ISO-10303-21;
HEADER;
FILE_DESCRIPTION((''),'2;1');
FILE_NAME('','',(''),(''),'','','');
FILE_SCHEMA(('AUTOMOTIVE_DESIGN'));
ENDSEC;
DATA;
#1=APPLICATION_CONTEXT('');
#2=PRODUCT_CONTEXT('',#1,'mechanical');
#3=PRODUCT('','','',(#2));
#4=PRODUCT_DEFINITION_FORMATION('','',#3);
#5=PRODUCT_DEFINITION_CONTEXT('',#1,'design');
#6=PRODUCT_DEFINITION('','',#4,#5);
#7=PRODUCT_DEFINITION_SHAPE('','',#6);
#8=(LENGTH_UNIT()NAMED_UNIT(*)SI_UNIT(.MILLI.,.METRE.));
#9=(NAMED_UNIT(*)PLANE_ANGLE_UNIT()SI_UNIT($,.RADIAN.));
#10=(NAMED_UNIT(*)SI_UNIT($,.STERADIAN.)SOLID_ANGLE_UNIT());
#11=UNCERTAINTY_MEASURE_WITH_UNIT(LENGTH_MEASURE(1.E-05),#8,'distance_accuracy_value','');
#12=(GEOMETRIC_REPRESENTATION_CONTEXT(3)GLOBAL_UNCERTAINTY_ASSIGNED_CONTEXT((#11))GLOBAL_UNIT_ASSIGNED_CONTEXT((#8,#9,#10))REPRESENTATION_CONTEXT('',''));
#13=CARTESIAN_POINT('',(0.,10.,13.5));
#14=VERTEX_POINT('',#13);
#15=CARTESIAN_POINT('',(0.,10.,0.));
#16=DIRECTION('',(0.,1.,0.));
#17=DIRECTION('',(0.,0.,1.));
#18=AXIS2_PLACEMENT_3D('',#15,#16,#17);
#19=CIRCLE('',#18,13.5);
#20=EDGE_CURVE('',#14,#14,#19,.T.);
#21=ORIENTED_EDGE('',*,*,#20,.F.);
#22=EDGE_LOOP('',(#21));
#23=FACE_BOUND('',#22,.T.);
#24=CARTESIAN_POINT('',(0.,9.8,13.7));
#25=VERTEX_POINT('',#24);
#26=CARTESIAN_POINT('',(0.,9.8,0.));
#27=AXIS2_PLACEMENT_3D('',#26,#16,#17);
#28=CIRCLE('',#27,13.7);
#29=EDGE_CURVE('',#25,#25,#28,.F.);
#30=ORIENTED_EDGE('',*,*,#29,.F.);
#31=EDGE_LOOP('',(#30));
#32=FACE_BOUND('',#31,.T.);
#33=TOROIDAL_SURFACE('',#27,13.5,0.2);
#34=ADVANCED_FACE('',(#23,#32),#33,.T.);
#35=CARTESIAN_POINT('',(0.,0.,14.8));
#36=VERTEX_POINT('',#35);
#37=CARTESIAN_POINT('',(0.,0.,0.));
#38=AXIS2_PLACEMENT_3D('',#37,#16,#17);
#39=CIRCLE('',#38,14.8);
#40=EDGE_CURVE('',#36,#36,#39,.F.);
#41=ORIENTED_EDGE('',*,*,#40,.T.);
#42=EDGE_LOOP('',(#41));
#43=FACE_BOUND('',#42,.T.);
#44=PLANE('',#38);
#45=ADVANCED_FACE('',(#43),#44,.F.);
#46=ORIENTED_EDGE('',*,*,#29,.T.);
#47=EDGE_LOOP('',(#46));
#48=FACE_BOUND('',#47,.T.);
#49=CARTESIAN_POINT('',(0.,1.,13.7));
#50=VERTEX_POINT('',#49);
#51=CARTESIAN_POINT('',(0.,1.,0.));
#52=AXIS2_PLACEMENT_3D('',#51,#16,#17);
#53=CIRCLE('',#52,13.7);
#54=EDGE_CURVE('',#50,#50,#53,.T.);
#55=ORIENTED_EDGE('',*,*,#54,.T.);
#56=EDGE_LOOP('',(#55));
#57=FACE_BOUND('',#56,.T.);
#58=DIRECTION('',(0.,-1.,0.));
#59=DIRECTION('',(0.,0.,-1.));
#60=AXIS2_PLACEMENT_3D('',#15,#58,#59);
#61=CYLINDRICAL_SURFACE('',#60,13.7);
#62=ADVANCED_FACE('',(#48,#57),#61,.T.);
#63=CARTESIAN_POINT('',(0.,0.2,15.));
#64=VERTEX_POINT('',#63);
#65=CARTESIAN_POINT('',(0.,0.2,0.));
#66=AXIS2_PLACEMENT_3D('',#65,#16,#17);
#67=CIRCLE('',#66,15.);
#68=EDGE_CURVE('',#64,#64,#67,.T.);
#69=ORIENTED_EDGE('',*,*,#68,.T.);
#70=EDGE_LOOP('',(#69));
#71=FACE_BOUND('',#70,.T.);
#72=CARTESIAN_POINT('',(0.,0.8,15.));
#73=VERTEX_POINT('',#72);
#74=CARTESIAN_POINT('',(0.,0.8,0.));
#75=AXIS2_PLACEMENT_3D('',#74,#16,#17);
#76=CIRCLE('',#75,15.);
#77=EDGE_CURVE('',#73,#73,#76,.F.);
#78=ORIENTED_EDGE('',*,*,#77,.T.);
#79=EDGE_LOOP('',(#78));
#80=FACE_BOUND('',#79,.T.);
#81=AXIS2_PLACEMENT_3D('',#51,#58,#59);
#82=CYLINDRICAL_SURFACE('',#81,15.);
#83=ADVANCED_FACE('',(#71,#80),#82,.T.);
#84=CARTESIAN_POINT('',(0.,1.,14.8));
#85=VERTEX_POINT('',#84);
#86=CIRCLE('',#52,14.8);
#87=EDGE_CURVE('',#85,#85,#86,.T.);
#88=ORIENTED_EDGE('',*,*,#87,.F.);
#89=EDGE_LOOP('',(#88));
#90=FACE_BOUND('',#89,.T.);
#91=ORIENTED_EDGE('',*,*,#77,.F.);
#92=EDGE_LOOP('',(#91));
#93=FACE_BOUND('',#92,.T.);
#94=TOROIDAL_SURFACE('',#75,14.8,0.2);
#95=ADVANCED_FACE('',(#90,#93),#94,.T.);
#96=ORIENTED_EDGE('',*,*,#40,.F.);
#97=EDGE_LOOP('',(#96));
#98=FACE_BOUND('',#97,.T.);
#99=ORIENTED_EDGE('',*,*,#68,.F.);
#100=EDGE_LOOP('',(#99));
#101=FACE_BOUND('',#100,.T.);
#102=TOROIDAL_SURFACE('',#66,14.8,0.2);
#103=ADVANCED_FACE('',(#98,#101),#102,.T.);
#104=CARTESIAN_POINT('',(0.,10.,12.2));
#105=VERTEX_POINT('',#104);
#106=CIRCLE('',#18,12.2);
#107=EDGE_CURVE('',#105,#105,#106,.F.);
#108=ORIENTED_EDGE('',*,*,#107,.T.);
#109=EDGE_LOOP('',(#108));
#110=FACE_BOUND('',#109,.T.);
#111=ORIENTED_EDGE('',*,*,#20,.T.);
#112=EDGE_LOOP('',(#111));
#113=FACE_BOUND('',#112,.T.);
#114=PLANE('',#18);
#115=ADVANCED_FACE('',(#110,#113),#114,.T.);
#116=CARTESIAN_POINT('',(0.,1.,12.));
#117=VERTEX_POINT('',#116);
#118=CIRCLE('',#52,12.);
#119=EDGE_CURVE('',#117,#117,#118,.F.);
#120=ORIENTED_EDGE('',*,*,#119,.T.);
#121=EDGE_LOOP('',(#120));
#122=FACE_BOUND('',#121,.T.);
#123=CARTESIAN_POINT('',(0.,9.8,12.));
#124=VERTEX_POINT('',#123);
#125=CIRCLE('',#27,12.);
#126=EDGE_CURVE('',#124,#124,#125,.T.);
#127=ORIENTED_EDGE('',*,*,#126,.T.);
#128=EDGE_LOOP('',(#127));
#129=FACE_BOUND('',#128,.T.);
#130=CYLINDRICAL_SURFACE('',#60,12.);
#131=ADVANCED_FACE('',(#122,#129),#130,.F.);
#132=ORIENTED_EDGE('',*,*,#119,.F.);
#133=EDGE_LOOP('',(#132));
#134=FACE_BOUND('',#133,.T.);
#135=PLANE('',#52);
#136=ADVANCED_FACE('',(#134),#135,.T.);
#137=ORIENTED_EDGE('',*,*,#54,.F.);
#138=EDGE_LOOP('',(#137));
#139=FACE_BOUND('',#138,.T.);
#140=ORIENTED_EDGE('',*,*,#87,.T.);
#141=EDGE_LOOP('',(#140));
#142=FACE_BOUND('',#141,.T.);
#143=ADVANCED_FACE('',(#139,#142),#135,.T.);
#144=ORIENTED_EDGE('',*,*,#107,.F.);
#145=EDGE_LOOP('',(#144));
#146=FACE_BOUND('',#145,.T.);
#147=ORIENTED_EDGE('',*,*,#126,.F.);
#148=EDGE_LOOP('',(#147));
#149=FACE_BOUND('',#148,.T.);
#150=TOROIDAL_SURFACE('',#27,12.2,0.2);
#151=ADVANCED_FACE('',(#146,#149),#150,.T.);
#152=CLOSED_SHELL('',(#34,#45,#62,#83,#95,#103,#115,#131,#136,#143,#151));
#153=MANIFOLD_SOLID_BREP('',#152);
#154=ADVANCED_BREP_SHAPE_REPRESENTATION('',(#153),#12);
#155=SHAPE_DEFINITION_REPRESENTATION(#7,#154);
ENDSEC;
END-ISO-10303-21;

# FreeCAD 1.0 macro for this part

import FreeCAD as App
import Part
import Sketcher

V = App.Vector
Q = App.Units.Quantity


def edges_at(feature, points):
    """Names of the edges that pass closest to the given points."""
    edges = feature.Shape.Edges
    near = lambda p: min(range(len(edges)), key=lambda i: edges[i].distToShape(Part.Vertex(*p))[0])
    return sorted({f"Edge{near(p) + 1}" for p in points})

doc = App.newDocument("Part")
body = doc.addObject("PartDesign::Body", "Body")

# Sketch on XZ plane
sketch1 = doc.addObject("Sketcher::SketchObject", "Sketch")
body.addObject(sketch1)
sketch1.AttachmentSupport = (doc.XZ_Plane, [""])
sketch1.MapMode = "FlatFace"
sketch1.addGeometry(Part.Circle(V(0, 0, 0), V(0, 0, 1), 15), False)
sketch1.addConstraint([
    Sketcher.Constraint("Coincident", 0, 3, -1, 1),
    Sketcher.Constraint("Diameter", 0, Q("30 mm")),
])
pad1 = doc.addObject("PartDesign::Pad", "Pad")
body.addObject(pad1)
pad1.Profile = sketch1
pad1.Length = 1
pad1.Reversed = True

# Sketch on XZ plane
sketch2 = doc.addObject("Sketcher::SketchObject", "Sketch001")
body.addObject(sketch2)
sketch2.AttachmentSupport = (doc.XZ_Plane, [""])
sketch2.MapMode = "FlatFace"
sketch2.AttachmentOffset = App.Placement(V(0, 0, -1), App.Rotation())
sketch2.addGeometry([
    Part.Circle(V(0, 0, 0), V(0, 0, 1), 14),
    Part.Circle(V(0, 0, 0), V(0, 0, 1), 12),
], False)
sketch2.addConstraint([
    Sketcher.Constraint("Coincident", 0, 3, -1, 1),
    Sketcher.Constraint("Coincident", 1, 3, -1, 1),
    Sketcher.Constraint("Diameter", 1, Q("24 mm")),
    Sketcher.Constraint("Diameter", 0, Q("27.4 mm")),
])
pad2 = doc.addObject("PartDesign::Pad", "Pad001")
body.addObject(pad2)
pad2.Profile = sketch2
pad2.Length = 9
pad2.Reversed = True
doc.recompute()

fillet = doc.addObject("PartDesign::Fillet", "Fillet")
body.addObject(fillet)
fillet.Base = (pad2, edges_at(pad2, [
    (0, 0, -15),
    (0, 1, -15),
    (0, 10, -13.7),
    (0, 10, -12),
]))
fillet.Radius = 0.2

doc.recompute()
